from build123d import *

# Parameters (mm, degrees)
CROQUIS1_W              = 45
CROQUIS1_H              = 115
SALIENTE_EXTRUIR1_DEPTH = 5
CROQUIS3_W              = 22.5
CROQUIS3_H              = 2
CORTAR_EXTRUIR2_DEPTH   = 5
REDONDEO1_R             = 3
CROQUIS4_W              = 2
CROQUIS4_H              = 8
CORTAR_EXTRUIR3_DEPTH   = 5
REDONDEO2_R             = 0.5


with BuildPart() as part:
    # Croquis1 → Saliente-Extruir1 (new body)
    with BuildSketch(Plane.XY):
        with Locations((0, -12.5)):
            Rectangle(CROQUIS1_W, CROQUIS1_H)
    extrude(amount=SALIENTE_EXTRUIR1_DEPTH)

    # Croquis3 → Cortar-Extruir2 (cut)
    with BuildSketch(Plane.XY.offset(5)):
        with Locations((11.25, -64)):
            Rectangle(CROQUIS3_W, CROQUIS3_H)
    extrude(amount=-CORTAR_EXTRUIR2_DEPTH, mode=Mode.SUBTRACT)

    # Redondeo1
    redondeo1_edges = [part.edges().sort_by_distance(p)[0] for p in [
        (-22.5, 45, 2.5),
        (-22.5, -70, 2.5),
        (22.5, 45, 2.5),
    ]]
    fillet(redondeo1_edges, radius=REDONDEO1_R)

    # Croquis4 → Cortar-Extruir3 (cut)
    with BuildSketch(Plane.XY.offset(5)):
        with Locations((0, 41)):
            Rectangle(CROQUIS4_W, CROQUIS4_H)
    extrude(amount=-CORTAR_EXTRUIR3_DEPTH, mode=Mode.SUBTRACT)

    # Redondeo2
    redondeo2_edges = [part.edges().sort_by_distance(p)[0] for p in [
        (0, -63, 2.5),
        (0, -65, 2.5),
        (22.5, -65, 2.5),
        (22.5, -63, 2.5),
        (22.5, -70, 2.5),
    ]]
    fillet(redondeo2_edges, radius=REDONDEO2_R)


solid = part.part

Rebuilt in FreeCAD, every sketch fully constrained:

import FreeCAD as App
import Part
import Sketcher

V = App.Vector
Q = App.Units.Quantity


def edges_at(feature, points):
    """Names of the edges that pass closest to the given points."""
    edges = feature.Shape.Edges
    near = lambda p: min(range(len(edges)), key=lambda i: edges[i].distToShape(Part.Vertex(*p))[0])
    return sorted({f"Edge{near(p) + 1}" for p in points})

doc = App.newDocument("Part")
params = doc.addObject("Spreadsheet::Sheet", "Params")
for row, (alias, value) in enumerate([
    ("sketch1_width", "45 mm"),
    ("sketch1_height", "115 mm"),
    ("pad1_length", "5 mm"),
    ("sketch2_height", "2 mm"),
    ("sketch2_width", "22.5 mm"),
    ("pocket1_length", "5 mm"),
    ("fillet_radius", "3 mm"),
    ("sketch3_width", "2 mm"),
    ("sketch3_height", "8 mm"),
    ("pocket2_length", "5 mm"),
    ("fillet2_radius", "0.5 mm"),
], start=1):
    params.set(f"A{row}", alias)
    params.set(f"B{row}", "=" + value)
    params.setAlias(f"B{row}", alias)

body = doc.addObject("PartDesign::Body", "Body")

sketch1 = body.newObject("Sketcher::SketchObject", "Sketch")
sketch1.AttachmentSupport = (doc.getObject("XY_Plane"), [""])
sketch1.MapMode = "FlatFace"
sketch1.addGeometry([
    Part.LineSegment(V(-22, 45, 0), V(-22, -70, 0)),
    Part.LineSegment(V(-22, -70, 0), V(22, -70, 0)),
    Part.LineSegment(V(22, -70, 0), V(22, 45, 0)),
    Part.LineSegment(V(22, 45, 0), V(-22, 45, 0)),
], False)
sketch1.addConstraint([
    Sketcher.Constraint("Coincident", 0, 2, 1, 1),
    Sketcher.Constraint("Coincident", 1, 2, 2, 1),
    Sketcher.Constraint("Coincident", 2, 2, 3, 1),
    Sketcher.Constraint("Coincident", 3, 2, 0, 1),
    Sketcher.Constraint("Vertical", 0),
    Sketcher.Constraint("Horizontal", 1),
    Sketcher.Constraint("Vertical", 2),
    Sketcher.Constraint("Horizontal", 3),
    Sketcher.Constraint("DistanceX", 1, 1, 1, 2, Q("45 mm")),
    Sketcher.Constraint("DistanceY", 0, 2, 0, 1, Q("115 mm")),
    Sketcher.Constraint("DistanceY", 0, 2, -1, 1, Q("70 mm")),
    Sketcher.Constraint("DistanceX", 0, 2, -1, 1, Q("22.5 mm")),
])
sketch1.setExpression("Constraints[8]", "Params.sketch1_width")
sketch1.setExpression("Constraints[9]", "Params.sketch1_height")
pad1 = body.newObject("PartDesign::Pad", "Pad")
pad1.Profile = sketch1
pad1.setExpression("Length", "Params.pad1_length")

sketch2 = body.newObject("Sketcher::SketchObject", "Sketch001")
sketch2.AttachmentSupport = (doc.getObject("XY_Plane"), [""])
sketch2.MapMode = "FlatFace"
sketch2.AttachmentOffset = App.Placement(V(0, 0, 5), App.Rotation())
sketch2.addGeometry([
    Part.LineSegment(V(0, -63, 0), V(0, -65, 0)),
    Part.LineSegment(V(0, -65, 0), V(22.5, -65, 0)),
    Part.LineSegment(V(22.5, -65, 0), V(22.5, -63, 0)),
    Part.LineSegment(V(22.5, -63, 0), V(0, -63, 0)),
], False)
sketch2.addConstraint([
    Sketcher.Constraint("Coincident", 0, 2, 1, 1),
    Sketcher.Constraint("Coincident", 1, 2, 2, 1),
    Sketcher.Constraint("Coincident", 2, 2, 3, 1),
    Sketcher.Constraint("Coincident", 3, 2, 0, 1),
    Sketcher.Constraint("Vertical", 0),
    Sketcher.Constraint("Horizontal", 1),
    Sketcher.Constraint("Vertical", 2),
    Sketcher.Constraint("Horizontal", 3),
    Sketcher.Constraint("PointOnObject", 0, 2, -2),
    Sketcher.Constraint("DistanceY", 0, 2, 0, 1, Q("2 mm")),
    Sketcher.Constraint("DistanceX", 1, 1, 1, 2, Q("22.5 mm")),
    Sketcher.Constraint("DistanceY", 0, 2, -1, 1, Q("65 mm")),
])
sketch2.setExpression("Constraints[9]", "Params.sketch2_height")
sketch2.setExpression("Constraints[10]", "Params.sketch2_width")
pocket1 = body.newObject("PartDesign::Pocket", "Pocket")
pocket1.Profile = sketch2
pocket1.setExpression("Length", "Params.pocket1_length")
doc.recompute()

fillet = body.newObject("PartDesign::Fillet", "Fillet")
fillet.Base = (pocket1, edges_at(pocket1, [(-22.5, 45, 2.5), (-22.5, -70, 2.5), (22.5, 45, 2.5)]))
fillet.setExpression("Radius", "Params.fillet_radius")

sketch3 = body.newObject("Sketcher::SketchObject", "Sketch002")
sketch3.AttachmentSupport = (doc.getObject("XY_Plane"), [""])
sketch3.MapMode = "FlatFace"
sketch3.AttachmentOffset = App.Placement(V(0, 0, 5), App.Rotation())
sketch3.addGeometry([
    Part.LineSegment(V(-1, 45, 0), V(-1, 37, 0)),
    Part.LineSegment(V(-1, 37, 0), V(1, 37, 0)),
    Part.LineSegment(V(1, 37, 0), V(1, 45, 0)),
    Part.LineSegment(V(1, 45, 0), V(-1, 45, 0)),
], False)
sketch3.addConstraint([
    Sketcher.Constraint("Coincident", 0, 2, 1, 1),
    Sketcher.Constraint("Coincident", 1, 2, 2, 1),
    Sketcher.Constraint("Coincident", 2, 2, 3, 1),
    Sketcher.Constraint("Coincident", 3, 2, 0, 1),
    Sketcher.Constraint("Vertical", 0),
    Sketcher.Constraint("Horizontal", 1),
    Sketcher.Constraint("Vertical", 2),
    Sketcher.Constraint("Horizontal", 3),
    Sketcher.Constraint("DistanceX", 1, 1, 1, 2, Q("2 mm")),
    Sketcher.Constraint("DistanceY", 0, 2, 0, 1, Q("8 mm")),
    Sketcher.Constraint("DistanceX", 0, 2, -1, 1, Q("1 mm")),
    Sketcher.Constraint("DistanceY", -1, 1, 0, 2, Q("37 mm")),
])
sketch3.setExpression("Constraints[8]", "Params.sketch3_width")
sketch3.setExpression("Constraints[9]", "Params.sketch3_height")
pocket2 = body.newObject("PartDesign::Pocket", "Pocket001")
pocket2.Profile = sketch3
pocket2.setExpression("Length", "Params.pocket2_length")
doc.recompute()

fillet2 = body.newObject("PartDesign::Fillet", "Fillet001")
fillet2.Base = (pocket2, edges_at(pocket2, [
    (0, -63, 2.5),
    (0, -65, 2.5),
    (22.5, -65, 2.5),
    (22.5, -63, 2.5),
    (22.5, -70, 2.5),
]))
fillet2.setExpression("Radius", "Params.fillet2_radius")

doc.recompute()
